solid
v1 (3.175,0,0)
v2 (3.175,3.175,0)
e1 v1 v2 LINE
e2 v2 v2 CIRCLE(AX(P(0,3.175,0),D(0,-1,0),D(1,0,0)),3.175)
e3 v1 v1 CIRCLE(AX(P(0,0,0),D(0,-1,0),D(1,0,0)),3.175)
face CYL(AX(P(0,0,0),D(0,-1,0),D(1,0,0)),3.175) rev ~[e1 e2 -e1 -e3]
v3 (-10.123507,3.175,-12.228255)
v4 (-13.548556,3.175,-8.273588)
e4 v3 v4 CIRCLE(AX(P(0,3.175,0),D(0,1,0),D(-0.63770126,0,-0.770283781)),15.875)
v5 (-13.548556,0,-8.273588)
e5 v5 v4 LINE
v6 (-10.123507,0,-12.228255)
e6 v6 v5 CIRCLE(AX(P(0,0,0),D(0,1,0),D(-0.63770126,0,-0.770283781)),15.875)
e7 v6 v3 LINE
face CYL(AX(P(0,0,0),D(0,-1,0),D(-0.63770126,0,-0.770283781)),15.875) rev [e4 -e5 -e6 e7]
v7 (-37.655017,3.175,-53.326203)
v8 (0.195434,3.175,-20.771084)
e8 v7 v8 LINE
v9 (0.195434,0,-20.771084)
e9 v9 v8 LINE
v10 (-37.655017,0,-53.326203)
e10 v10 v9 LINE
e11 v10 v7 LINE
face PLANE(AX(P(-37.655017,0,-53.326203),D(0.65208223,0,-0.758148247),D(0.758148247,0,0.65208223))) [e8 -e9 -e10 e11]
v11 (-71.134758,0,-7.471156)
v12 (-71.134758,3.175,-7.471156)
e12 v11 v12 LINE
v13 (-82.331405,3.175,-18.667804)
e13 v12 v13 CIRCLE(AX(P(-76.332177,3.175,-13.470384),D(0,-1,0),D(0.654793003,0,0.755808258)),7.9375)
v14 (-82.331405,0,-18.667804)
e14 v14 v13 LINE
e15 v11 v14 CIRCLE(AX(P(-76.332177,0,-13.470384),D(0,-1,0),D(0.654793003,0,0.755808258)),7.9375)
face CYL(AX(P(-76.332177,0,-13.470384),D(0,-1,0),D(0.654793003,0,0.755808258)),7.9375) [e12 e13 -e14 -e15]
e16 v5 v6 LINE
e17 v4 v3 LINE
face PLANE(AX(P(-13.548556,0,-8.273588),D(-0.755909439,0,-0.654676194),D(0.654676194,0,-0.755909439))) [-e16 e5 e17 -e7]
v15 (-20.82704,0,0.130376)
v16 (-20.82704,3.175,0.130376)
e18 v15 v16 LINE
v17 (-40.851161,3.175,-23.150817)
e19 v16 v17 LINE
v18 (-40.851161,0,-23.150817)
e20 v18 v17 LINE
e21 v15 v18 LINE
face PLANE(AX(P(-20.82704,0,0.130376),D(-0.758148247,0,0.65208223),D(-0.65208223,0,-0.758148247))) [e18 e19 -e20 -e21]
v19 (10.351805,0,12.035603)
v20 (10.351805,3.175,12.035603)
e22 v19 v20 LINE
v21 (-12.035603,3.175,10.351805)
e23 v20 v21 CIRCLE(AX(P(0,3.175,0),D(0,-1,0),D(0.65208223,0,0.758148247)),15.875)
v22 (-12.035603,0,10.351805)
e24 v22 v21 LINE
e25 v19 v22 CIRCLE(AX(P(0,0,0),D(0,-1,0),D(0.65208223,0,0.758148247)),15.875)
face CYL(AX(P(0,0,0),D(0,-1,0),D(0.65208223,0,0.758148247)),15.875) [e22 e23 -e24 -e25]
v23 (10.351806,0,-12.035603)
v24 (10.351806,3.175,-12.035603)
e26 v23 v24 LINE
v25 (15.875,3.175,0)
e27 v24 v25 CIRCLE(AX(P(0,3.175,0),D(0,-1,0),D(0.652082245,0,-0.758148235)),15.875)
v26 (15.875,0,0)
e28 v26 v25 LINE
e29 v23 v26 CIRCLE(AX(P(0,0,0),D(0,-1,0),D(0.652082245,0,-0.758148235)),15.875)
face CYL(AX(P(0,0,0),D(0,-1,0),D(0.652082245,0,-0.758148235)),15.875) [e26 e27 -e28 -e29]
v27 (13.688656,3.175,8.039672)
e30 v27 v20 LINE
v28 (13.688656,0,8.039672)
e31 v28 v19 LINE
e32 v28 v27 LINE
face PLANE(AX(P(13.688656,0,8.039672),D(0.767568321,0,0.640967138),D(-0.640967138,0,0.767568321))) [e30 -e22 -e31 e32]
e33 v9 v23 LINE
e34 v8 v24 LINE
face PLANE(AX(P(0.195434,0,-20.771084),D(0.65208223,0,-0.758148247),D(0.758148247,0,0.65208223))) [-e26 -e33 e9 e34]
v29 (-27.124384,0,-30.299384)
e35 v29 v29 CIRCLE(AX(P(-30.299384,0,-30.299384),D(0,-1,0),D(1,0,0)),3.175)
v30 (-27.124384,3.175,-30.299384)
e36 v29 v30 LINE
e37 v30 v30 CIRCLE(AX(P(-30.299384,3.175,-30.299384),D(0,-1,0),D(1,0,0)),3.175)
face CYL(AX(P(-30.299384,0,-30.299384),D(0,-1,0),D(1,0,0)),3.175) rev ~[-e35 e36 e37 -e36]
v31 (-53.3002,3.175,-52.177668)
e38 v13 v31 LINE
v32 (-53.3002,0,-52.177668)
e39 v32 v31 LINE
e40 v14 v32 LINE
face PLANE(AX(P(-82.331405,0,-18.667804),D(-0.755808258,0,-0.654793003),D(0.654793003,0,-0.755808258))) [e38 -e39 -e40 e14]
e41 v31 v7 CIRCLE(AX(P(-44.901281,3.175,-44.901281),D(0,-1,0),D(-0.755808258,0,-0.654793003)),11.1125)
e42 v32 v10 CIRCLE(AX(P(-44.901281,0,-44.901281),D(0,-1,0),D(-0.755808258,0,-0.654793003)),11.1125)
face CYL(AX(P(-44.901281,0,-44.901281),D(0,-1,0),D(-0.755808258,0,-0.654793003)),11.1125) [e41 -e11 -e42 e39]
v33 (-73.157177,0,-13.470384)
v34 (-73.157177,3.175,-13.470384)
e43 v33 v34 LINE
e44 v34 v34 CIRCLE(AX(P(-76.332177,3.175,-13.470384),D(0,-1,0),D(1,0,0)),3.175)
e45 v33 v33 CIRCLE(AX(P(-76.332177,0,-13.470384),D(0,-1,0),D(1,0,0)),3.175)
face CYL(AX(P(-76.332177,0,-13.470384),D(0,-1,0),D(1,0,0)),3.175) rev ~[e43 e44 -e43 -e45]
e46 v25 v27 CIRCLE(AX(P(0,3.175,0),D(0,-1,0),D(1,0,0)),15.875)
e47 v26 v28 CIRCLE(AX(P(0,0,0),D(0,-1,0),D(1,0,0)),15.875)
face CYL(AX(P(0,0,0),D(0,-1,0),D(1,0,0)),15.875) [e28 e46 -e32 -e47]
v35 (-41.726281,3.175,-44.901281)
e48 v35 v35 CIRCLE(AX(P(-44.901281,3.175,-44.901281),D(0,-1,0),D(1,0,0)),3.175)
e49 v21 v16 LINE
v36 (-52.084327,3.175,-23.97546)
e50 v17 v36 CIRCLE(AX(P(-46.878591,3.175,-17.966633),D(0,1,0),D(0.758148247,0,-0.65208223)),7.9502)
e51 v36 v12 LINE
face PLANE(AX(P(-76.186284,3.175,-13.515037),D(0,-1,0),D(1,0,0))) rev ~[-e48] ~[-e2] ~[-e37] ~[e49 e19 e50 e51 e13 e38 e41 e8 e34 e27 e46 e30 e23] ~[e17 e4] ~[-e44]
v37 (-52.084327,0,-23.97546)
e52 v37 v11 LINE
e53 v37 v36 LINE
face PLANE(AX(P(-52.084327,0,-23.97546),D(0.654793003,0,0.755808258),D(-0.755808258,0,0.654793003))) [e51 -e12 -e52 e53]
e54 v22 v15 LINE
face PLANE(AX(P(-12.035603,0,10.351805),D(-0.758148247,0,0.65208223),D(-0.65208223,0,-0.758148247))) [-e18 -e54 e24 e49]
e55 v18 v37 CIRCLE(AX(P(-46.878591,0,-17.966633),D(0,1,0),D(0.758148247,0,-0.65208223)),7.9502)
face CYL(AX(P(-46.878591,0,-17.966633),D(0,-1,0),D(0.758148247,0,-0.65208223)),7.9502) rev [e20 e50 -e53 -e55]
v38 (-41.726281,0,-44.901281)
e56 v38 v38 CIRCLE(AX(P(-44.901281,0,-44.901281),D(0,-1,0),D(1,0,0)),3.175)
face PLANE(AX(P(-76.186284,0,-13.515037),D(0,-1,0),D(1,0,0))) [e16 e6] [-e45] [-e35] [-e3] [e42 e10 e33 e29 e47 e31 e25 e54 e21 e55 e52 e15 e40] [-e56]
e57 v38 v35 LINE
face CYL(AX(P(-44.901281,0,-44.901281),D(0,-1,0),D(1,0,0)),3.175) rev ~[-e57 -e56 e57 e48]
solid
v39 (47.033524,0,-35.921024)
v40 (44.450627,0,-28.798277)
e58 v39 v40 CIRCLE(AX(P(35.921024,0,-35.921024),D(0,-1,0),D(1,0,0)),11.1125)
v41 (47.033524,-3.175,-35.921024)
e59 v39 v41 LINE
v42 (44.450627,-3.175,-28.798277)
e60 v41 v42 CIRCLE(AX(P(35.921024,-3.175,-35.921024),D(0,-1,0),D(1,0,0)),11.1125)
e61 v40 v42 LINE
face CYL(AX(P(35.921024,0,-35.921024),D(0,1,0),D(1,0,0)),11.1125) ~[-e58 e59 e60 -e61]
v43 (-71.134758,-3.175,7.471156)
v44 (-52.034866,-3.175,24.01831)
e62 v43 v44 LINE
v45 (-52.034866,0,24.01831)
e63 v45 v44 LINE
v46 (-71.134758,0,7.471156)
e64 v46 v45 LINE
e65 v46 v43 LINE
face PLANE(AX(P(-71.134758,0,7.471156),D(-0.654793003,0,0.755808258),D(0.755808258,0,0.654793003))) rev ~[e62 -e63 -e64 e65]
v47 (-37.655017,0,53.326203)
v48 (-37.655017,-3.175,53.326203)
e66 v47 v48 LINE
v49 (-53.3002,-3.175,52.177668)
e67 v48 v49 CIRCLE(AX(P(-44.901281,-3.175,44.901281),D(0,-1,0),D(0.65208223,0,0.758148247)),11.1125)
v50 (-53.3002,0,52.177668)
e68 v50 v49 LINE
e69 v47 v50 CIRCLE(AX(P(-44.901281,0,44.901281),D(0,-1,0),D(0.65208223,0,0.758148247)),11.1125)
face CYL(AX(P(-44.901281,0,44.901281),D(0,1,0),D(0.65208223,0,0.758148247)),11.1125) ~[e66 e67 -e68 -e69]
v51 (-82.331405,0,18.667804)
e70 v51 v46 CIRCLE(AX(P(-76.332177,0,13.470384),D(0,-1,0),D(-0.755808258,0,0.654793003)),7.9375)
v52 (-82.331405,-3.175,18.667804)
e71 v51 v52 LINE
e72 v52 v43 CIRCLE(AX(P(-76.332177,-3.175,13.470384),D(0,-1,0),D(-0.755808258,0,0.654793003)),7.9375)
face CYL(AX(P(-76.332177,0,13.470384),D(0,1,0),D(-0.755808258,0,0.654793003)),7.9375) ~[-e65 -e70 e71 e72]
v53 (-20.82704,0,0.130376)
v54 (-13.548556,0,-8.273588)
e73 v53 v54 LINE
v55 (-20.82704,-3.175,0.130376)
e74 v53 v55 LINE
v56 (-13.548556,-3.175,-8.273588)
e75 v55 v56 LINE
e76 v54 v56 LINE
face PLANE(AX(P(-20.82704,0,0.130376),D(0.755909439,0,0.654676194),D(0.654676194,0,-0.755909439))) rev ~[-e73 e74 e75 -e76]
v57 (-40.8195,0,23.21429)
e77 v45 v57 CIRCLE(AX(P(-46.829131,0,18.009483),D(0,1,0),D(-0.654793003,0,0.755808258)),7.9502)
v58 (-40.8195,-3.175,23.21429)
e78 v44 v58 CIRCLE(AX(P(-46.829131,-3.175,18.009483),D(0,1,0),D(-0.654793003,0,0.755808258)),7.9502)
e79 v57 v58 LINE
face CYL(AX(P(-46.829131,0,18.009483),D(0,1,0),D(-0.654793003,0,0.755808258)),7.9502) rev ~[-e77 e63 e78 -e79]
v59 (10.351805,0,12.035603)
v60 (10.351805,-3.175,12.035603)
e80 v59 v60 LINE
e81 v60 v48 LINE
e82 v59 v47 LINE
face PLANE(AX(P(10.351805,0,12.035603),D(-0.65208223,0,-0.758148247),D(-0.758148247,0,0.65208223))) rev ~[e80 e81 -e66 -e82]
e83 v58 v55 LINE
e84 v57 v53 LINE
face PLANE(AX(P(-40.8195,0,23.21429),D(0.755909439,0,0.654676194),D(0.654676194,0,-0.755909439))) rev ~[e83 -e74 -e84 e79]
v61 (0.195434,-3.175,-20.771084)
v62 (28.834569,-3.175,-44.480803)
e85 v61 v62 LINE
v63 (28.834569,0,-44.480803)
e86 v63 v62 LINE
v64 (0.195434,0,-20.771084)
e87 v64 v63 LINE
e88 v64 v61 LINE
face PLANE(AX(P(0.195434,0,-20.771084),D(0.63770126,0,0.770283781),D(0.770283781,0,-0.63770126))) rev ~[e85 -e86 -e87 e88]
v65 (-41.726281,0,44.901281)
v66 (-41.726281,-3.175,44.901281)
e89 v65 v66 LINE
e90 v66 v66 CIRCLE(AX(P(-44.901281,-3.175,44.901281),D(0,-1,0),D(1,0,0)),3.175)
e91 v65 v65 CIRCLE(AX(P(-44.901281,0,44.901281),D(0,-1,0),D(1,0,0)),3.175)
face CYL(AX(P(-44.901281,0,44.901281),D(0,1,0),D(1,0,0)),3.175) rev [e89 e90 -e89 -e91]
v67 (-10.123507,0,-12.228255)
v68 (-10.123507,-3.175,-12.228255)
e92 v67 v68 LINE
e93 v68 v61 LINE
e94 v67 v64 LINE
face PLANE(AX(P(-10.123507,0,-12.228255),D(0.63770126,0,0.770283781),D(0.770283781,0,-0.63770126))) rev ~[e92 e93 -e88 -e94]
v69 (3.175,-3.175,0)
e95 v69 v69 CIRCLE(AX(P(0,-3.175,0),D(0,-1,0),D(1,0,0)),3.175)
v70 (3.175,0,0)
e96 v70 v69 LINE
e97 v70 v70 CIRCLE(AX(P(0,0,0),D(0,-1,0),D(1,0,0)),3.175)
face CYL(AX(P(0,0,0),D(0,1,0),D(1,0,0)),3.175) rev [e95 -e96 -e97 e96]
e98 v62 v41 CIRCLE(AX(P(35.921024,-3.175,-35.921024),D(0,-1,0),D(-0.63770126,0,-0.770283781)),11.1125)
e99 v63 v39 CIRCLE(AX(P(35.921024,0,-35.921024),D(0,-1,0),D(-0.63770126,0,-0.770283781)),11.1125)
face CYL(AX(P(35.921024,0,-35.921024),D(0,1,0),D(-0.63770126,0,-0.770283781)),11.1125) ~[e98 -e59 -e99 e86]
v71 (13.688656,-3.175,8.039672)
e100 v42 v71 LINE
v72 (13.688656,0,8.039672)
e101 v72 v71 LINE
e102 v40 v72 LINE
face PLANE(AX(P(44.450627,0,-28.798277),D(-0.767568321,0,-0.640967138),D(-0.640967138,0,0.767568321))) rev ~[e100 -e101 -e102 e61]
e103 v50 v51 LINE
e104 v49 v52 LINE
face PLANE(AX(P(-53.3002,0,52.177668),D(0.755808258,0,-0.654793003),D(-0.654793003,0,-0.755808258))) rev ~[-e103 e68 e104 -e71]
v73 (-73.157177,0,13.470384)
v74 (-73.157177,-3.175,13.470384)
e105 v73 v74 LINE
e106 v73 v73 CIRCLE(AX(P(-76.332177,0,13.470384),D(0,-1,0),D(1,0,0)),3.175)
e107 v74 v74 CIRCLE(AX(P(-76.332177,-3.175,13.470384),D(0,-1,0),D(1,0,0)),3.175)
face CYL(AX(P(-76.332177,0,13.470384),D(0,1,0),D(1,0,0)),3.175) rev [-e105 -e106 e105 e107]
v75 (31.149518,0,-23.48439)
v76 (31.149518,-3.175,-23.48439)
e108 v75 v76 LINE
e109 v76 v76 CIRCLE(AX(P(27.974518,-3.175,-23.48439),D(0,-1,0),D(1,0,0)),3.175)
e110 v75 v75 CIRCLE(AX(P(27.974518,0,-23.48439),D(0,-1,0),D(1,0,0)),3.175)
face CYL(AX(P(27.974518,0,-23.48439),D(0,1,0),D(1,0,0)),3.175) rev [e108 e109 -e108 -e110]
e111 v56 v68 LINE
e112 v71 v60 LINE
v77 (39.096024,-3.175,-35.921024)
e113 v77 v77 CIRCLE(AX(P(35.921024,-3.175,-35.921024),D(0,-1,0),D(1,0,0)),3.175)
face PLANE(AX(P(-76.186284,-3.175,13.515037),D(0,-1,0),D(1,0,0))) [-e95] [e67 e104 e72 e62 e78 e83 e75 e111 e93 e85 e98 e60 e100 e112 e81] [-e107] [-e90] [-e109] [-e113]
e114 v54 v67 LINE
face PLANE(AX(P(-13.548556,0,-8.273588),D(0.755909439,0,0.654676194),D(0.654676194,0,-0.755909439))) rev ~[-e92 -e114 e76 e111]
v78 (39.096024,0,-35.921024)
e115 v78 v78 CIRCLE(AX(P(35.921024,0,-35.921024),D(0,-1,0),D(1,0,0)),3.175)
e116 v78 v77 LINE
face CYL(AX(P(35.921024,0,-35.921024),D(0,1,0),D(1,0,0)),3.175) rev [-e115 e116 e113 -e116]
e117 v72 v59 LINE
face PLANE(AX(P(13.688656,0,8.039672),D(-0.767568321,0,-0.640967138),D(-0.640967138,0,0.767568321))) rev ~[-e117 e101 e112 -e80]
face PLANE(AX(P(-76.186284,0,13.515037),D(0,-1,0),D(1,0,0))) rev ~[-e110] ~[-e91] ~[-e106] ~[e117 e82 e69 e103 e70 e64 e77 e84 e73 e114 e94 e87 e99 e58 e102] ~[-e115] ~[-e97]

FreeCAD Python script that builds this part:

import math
import FreeCAD as App
import Part
import Sketcher

V = App.Vector
Q = App.Units.Quantity

doc = App.newDocument("Part")
body = doc.addObject("PartDesign::Body", "Body")

# Sketch on XZ plane
sketch1 = body.newObject("Sketcher::SketchObject", "Sketch")
sketch1.AttachmentSupport = (doc.getObject("XZ_Plane"), [""])
sketch1.MapMode = "FlatFace"
sketch1.addGeometry([
    Part.ArcOfCircle(Part.Circle(V(-76.332177, 13.470384, 0), V(0, 0, 1), 7.9375), math.radians(139.096044), math.radians(310.903956)),  # 0
    Part.LineSegment(V(-71.134758, 7.471156, 0), V(-52.034866, 24.01831, 0)),  # 1
    Part.ArcOfCircle(Part.Circle(V(-46.829131, 18.009483, 0), V(0, 0, 1), 7.9502), math.radians(40.895102), math.radians(130.903956)),  # 2
    Part.LineSegment(V(-40.8195, 23.21429, 0), V(-20.82704, 0.130376, 0)),  # 3
    Part.LineSegment(V(-20.82704, 0.130376, 0), V(-13.548556, -8.273588, 0)),  # 4
    Part.LineSegment(V(-13.548556, -8.273588, 0), V(-10.123507, -12.228255, 0)),  # 5
    Part.LineSegment(V(-10.123507, -12.228255, 0), V(0.195434, -20.771084, 0)),  # 6
    Part.LineSegment(V(0.195434, -20.771084, 0), V(28.834569, -44.480803, 0)),  # 7
    Part.ArcOfCircle(Part.Circle(V(35.921024, -35.921024, 0), V(0, 0, 1), 11.1125), math.radians(-129.620621), math.radians(0)),  # 8
    Part.ArcOfCircle(Part.Circle(V(35.921024, -35.921024, 0), V(0, 0, 1), 11.1125), math.radians(0), math.radians(39.863974)),  # 9
    Part.LineSegment(V(44.450627, -28.798277, 0), V(13.688656, 8.039672, 0)),  # 10
    Part.LineSegment(V(13.688656, 8.039672, 0), V(10.351805, 12.035603, 0)),  # 11
    Part.LineSegment(V(10.351805, 12.035603, 0), V(-37.655017, 53.326203, 0)),  # 12
    Part.ArcOfCircle(Part.Circle(V(-44.901281, 44.901281, 0), V(0, 0, 1), 11.1125), math.radians(49.301222), math.radians(139.096044)),  # 13
    Part.LineSegment(V(-53.3002, 52.177668, 0), V(-82.331405, 18.667804, 0)),  # 14
    Part.Circle(V(35.921024, -35.921024, 0), V(0, 0, 1), 3.175),  # 15
    Part.Circle(V(27.974518, -23.48439, 0), V(0, 0, 1), 3.175),  # 16
    Part.Circle(V(0, 0, 0), V(0, 0, 1), 3.175),  # 17
    Part.Circle(V(-76.332177, 13.470384, 0), V(0, 0, 1), 3.175),  # 18
    Part.Circle(V(-44.901281, 44.901281, 0), V(0, 0, 1), 3.175),  # 19
], False)
sketch1.addConstraint([
    Sketcher.Constraint("Coincident", 0, 2, 1, 1),
    Sketcher.Constraint("Coincident", 1, 2, 2, 2),
    Sketcher.Constraint("Coincident", 2, 1, 3, 1),
    Sketcher.Constraint("Coincident", 3, 2, 4, 1),
    Sketcher.Constraint("Coincident", 4, 2, 5, 1),
    Sketcher.Constraint("Coincident", 5, 2, 6, 1),
    Sketcher.Constraint("Coincident", 6, 2, 7, 1),
    Sketcher.Constraint("Coincident", 7, 2, 8, 1),
    Sketcher.Constraint("Coincident", 8, 2, 9, 1),
    Sketcher.Constraint("Coincident", 9, 2, 10, 1),
    Sketcher.Constraint("Coincident", 10, 2, 11, 1),
    Sketcher.Constraint("Coincident", 11, 2, 12, 1),
    Sketcher.Constraint("Coincident", 12, 2, 13, 1),
    Sketcher.Constraint("Coincident", 13, 2, 14, 1),
    Sketcher.Constraint("Coincident", 14, 2, 0, 1),
    Sketcher.Constraint("Coincident", 17, 3, -1, 1),
    Sketcher.Constraint("Coincident", 9, 3, 8, 3),
    Sketcher.Constraint("Coincident", 15, 3, 8, 3),
    Sketcher.Constraint("Coincident", 18, 3, 0, 3),
    Sketcher.Constraint("Coincident", 19, 3, 13, 3),
    Sketcher.Constraint("Diameter", 15, Q("0.25 in")),
    Sketcher.Constraint("Diameter", 16, Q("0.25 in")),
    Sketcher.Constraint("Diameter", 17, Q("0.25 in")),
    Sketcher.Constraint("Diameter", 18, Q("0.25 in")),
    Sketcher.Constraint("Diameter", 19, Q("0.25 in")),
    Sketcher.Constraint("Radius", 0, Q("0.3125 in")),
    Sketcher.Constraint("Radius", 2, Q("0.313 in")),
    Sketcher.Constraint("Radius", 8, Q("0.4375 in")),
    Sketcher.Constraint("Radius", 13, Q("0.4375 in")),
    Sketcher.Constraint("DistanceX", 13, 3, 2, 1, Q("0.1607 in")),
    Sketcher.Constraint("DistanceX", 2, 1, -1, 1, Q("40.8195 mm")),
    Sketcher.Constraint("DistanceX", 13, 2, -1, 1, Q("53.3002 mm")),
    Sketcher.Constraint("DistanceY", 0, 3, 2, 3, Q("4.539099 mm")),
    Sketcher.Constraint("DistanceX", 0, 3, 8, 3, Q("112.253202 mm")),
    Sketcher.Constraint("DistanceX", 13, 3, 16, 3, Q("72.875799 mm")),
    Sketcher.Constraint("Distance", 5, Q("5.231668 mm")),
    Sketcher.Constraint("Distance", 7, Q("37.179979 mm")),
    Sketcher.Constraint("Distance", 11, Q("5.205962 mm")),
    Sketcher.Constraint("DistanceX", 2, 3, -1, 1, Q("46.829131 mm")),
    Sketcher.Constraint("DistanceY", -1, 1, 13, 3, Q("44.901281 mm")),
    Sketcher.Constraint("DistanceY", 16, 3, -1, 1, Q("23.48439 mm")),
    Sketcher.Constraint("DistanceY", -1, 1, 1, 2, Q("24.01831 mm")),
    Sketcher.Constraint("DistanceY", -1, 1, 2, 1, Q("23.21429 mm")),
    Sketcher.Constraint("DistanceX", 3, 2, -1, 1, Q("20.82704 mm")),
    Sketcher.Constraint("DistanceX", -1, 1, 7, 2, Q("28.834569 mm")),
    Sketcher.Constraint("DistanceY", 8, 3, 0, 3, Q("49.391409 mm")),
    Sketcher.Constraint("DistanceX", 0, 3, 0, 2, Q("5.197419 mm")),
    Sketcher.Constraint("DistanceX", 0, 2, 1, 2, Q("19.099891 mm")),
    Sketcher.Constraint("DistanceY", 4, 2, 2, 3, Q("26.283071 mm")),
    Sketcher.Constraint("DistanceX", 4, 2, 5, 2, Q("3.425049 mm")),
    Sketcher.Constraint("DistanceY", 5, 2, 3, 2, Q("12.358631 mm")),
    Sketcher.Constraint("DistanceX", 5, 2, 6, 2, Q("10.318942 mm")),
    Sketcher.Constraint("DistanceY", 6, 2, 5, 2, Q("8.542829 mm")),
    Sketcher.Constraint("DistanceY", 7, 2, 8, 2, Q("8.559779 mm")),
    Sketcher.Constraint("DistanceX", 16, 3, 9, 2, Q("16.476109 mm")),
    Sketcher.Constraint("DistanceX", 4, 2, 10, 2, Q("27.237212 mm")),
    Sketcher.Constraint("DistanceY", 4, 2, 10, 2, Q("16.31326 mm")),
    Sketcher.Constraint("DistanceX", 11, 2, 10, 2, Q("3.33685 mm")),
    Sketcher.Constraint("DistanceX", 1, 2, 12, 2, Q("14.379849 mm")),
    Sketcher.Constraint("DistanceX", 14, 2, 0, 3, Q("5.999228 mm")),
])
pad1 = body.newObject("PartDesign::Pad", "Pad")
pad1.Profile = sketch1
pad1.Length = Q("0.125 in")
body2 = doc.addObject("PartDesign::Body", "Body001")

# Sketch on XZ plane
sketch2 = body2.newObject("Sketcher::SketchObject", "Sketch001")
sketch2.AttachmentSupport = (doc.getObject("XZ_Plane001"), [""])
sketch2.MapMode = "FlatFace"
sketch2.addGeometry([
    Part.ArcOfCircle(Part.Circle(V(-76.332177, -13.470384, 0), V(0, 0, 1), 7.9375), math.radians(49.096044), math.radians(220.903956)),  # 0
    Part.LineSegment(V(-82.331405, -18.667804, 0), V(-53.3002, -52.177668, 0)),  # 1
    Part.ArcOfCircle(Part.Circle(V(-44.901281, -44.901281, 0), V(0, 0, 1), 11.1125), math.radians(-139.096044), math.radians(-49.301222)),  # 2
    Part.LineSegment(V(-37.655017, -53.326203, 0), V(0.195434, -20.771084, 0)),  # 3
    Part.LineSegment(V(0.195434, -20.771084, 0), V(10.351806, -12.035603, 0)),  # 4
    Part.ArcOfCircle(Part.Circle(V(0, 0, 0), V(0, 0, 1), 15.875), math.radians(-49.301221), math.radians(0)),  # 5
    Part.ArcOfCircle(Part.Circle(V(0, 0, 0), V(0, 0, 1), 15.875), math.radians(0), math.radians(30.426727)),  # 6
    Part.LineSegment(V(13.688656, 8.039672, 0), V(10.351805, 12.035603, 0)),  # 7
    Part.ArcOfCircle(Part.Circle(V(0, 0, 0), V(0, 0, 1), 15.875), math.radians(49.301222), math.radians(139.301223)),  # 8
    Part.LineSegment(V(-12.035603, 10.351805, 0), V(-20.82704, 0.130376, 0)),  # 9
    Part.LineSegment(V(-20.82704, 0.130376, 0), V(-40.851161, -23.150817, 0)),  # 10
    Part.ArcOfCircle(Part.Circle(V(-46.878591, -17.966633, 0), V(0, 0, 1), 7.9502), math.radians(-130.903956), math.radians(-40.698778)),  # 11
    Part.LineSegment(V(-52.084327, -23.97546, 0), V(-71.134758, -7.471156, 0)),  # 12
    Part.Circle(V(-44.901281, -44.901281, 0), V(0, 0, 1), 3.175),  # 13
    Part.Circle(V(-30.299384, -30.299384, 0), V(0, 0, 1), 3.175),  # 14
    Part.Circle(V(-76.332177, -13.470384, 0), V(0, 0, 1), 3.175),  # 15
    Part.ArcOfCircle(Part.Circle(V(0, 0, 0), V(0, 0, 1), 15.875), math.radians(-148.589175), math.radians(-129.620621)),  # 16
    Part.LineSegment(V(-13.548556, -8.273588, 0), V(-10.123507, -12.228255, 0)),  # 17
    Part.Circle(V(0, 0, 0), V(0, 0, 1), 3.175),  # 18
], False)
sketch2.addConstraint([
    Sketcher.Constraint("Coincident", 0, 2, 1, 1),
    Sketcher.Constraint("Coincident", 1, 2, 2, 1),
    Sketcher.Constraint("Coincident", 2, 2, 3, 1),
    Sketcher.Constraint("Coincident", 3, 2, 4, 1),
    Sketcher.Constraint("Coincident", 4, 2, 5, 1),
    Sketcher.Constraint("Coincident", 5, 2, 6, 1),
    Sketcher.Constraint("Coincident", 6, 2, 7, 1),
    Sketcher.Constraint("Coincident", 7, 2, 8, 1),
    Sketcher.Constraint("Coincident", 8, 2, 9, 1),
    Sketcher.Constraint("Coincident", 9, 2, 10, 1),
    Sketcher.Constraint("Coincident", 10, 2, 11, 2),
    Sketcher.Constraint("Coincident", 11, 1, 12, 1),
    Sketcher.Constraint("Coincident", 12, 2, 0, 1),
    Sketcher.Constraint("Coincident", 16, 1, 17, 1),
    Sketcher.Constraint("Coincident", 17, 2, 16, 2),
    Sketcher.Constraint("Coincident", 5, 3, -1, 1),
    Sketcher.Constraint("Coincident", 6, 3, -1, 1),
    Sketcher.Constraint("Coincident", 8, 3, -1, 1),
    Sketcher.Constraint("Coincident", 16, 3, -1, 1),
    Sketcher.Constraint("Coincident", 18, 3, -1, 1),
    Sketcher.Constraint("Coincident", 13, 3, 2, 3),
    Sketcher.Constraint("Coincident", 15, 3, 0, 3),
    Sketcher.Constraint("PointOnObject", 5, 2, -1),
    Sketcher.Constraint("Diameter", 13, Q("0.25 in")),
    Sketcher.Constraint("Diameter", 14, Q("0.25 in")),
    Sketcher.Constraint("Diameter", 15, Q("0.25 in")),
    Sketcher.Constraint("Diameter", 18, Q("0.25 in")),
    Sketcher.Constraint("Radius", 0, Q("0.3125 in")),
    Sketcher.Constraint("Radius", 2, Q("0.4375 in")),
    Sketcher.Constraint("Radius", 5, Q("0.625 in")),
    Sketcher.Constraint("Radius", 8, Q("0.625 in")),
    Sketcher.Constraint("Radius", 11, Q("0.313 in")),
    Sketcher.Constraint("Radius", 16, Q("0.625 in")),
    Sketcher.Constraint("Distance", 9, Q("13.482099 mm")),
    Sketcher.Constraint("DistanceX", 1, 2, -1, 1, Q("53.3002 mm")),
    Sketcher.Constraint("DistanceY", 14, 3, 15, 3, Q("16.829 mm")),
    Sketcher.Constraint("Distance", 3, Q("49.924868 mm")),
    Sketcher.Constraint("Distance", 7, Q("5.205962 mm")),
    Sketcher.Constraint("Distance", 10, Q("30.707969 mm")),
    Sketcher.Constraint("Distance", 17, Q("5.231668 mm")),
    Sketcher.Constraint("DistanceX", 2, 3, -1, 1, Q("44.901281 mm")),
    Sketcher.Constraint("DistanceY", 2, 3, -1, 1, Q("44.901281 mm")),
    Sketcher.Constraint("DistanceX", 11, 3, -1, 1, Q("46.878591 mm")),
    Sketcher.Constraint("DistanceX", 9, 2, -1, 1, Q("20.82704 mm")),
    Sketcher.Constraint("DistanceX", 10, 2, -1, 1, Q("40.851161 mm")),
    Sketcher.Constraint("DistanceY", 11, 1, -1, 1, Q("23.97546 mm")),
    Sketcher.Constraint("DistanceY", 11, 3, 0, 3, Q("4.496249 mm")),
    Sketcher.Constraint("DistanceX", 0, 2, 0, 3, Q("5.999228 mm")),
    Sketcher.Constraint("DistanceY", 2, 2, 14, 3, Q("23.026819 mm")),
    Sketcher.Constraint("DistanceX", 3, 2, 4, 2, Q("10.156371 mm")),
    Sketcher.Constraint("DistanceY", 3, 2, 4, 2, Q("8.73548 mm")),
    Sketcher.Constraint("DistanceX", 7, 2, 6, 2, Q("3.33685 mm")),
    Sketcher.Constraint("DistanceY", 9, 2, 8, 2, Q("10.221429 mm")),
    Sketcher.Constraint("DistanceX", 0, 3, 12, 2, Q("5.197419 mm")),
    Sketcher.Constraint("DistanceX", 12, 2, 11, 1, Q("19.050431 mm")),
    Sketcher.Constraint("DistanceX", 16, 1, 17, 2, Q("3.425049 mm")),
    Sketcher.Constraint("DistanceX", 14, 3, -1, 1, Q("30.299384 mm")),
])
pad2 = body2.newObject("PartDesign::Pad", "Pad001")
pad2.Profile = sketch2
pad2.Length = Q("0.125 in")
pad2.Reversed = True

doc.recompute()
